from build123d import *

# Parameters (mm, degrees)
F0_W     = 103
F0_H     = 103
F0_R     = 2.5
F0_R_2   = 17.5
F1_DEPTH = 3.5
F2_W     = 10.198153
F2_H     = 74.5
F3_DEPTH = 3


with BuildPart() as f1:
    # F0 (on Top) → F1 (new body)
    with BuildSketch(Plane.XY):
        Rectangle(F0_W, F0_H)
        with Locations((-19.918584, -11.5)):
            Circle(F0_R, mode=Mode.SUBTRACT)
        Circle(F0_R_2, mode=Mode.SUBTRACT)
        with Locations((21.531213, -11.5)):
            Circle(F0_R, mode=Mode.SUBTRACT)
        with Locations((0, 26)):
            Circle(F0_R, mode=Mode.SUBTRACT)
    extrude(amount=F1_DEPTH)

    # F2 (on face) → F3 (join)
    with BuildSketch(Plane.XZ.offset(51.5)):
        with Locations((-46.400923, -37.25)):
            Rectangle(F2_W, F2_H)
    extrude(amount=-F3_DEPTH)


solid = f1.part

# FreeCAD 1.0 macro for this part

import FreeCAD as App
import Part
import Sketcher

V = App.Vector


def add_polygon(sketch, points):
    """Adds a closed chain of lines whose ends are joined by coincident constraints."""
    first, n = sketch.GeometryCount, len(points)
    for a, b in zip(points, points[1:] + points[:1]):
        sketch.addGeometry(Part.LineSegment(App.Vector(*a, 0), App.Vector(*b, 0)), False)
    for i in range(n):
        sketch.addConstraint(Sketcher.Constraint("Coincident", first + i, 2, first + (i + 1) % n, 1))

doc = App.newDocument("Part")
body = doc.addObject("PartDesign::Body", "Body")

sketch1 = doc.addObject("Sketcher::SketchObject", "Sketch")
body.addObject(sketch1)
sketch1.AttachmentSupport = (doc.XY_Plane, [""])
sketch1.MapMode = "FlatFace"
add_polygon(sketch1, [(-51.5, 51.5), (-51.5, -51.5), (51.5, -51.5), (51.5, 51.5)])
sketch1.addGeometry(Part.Circle(V(-19.918584, -11.5, 0), V(0, 0, 1), 2.5), False)
sketch1.addGeometry(Part.Circle(V(0, 0, 0), V(0, 0, 1), 17.5), False)
sketch1.addGeometry(Part.Circle(V(21.531213, -11.5, 0), V(0, 0, 1), 2.5), False)
sketch1.addGeometry(Part.Circle(V(0, 26, 0), V(0, 0, 1), 2.5), False)
sketch1.addConstraint([
    Sketcher.Constraint("Vertical", 0),
    Sketcher.Constraint("Horizontal", 1),
    Sketcher.Constraint("Vertical", 2),
    Sketcher.Constraint("Horizontal", 3),
    Sketcher.Constraint("Coincident", 5, 3, -1, 1),
    Sketcher.Constraint("Equal", 4, 6),
    Sketcher.Constraint("Equal", 6, 7),
    Sketcher.Constraint("Symmetric", 0, 2, 2, 2, -1, 1),
    Sketcher.Constraint("PointOnObject", 7, 3, -2),
    Sketcher.Constraint("Horizontal", 4, 3, 6, 3),
    Sketcher.Constraint("Equal", 3, 0),
    Sketcher.Constraint("Diameter", 4, 5.0),
    Sketcher.Constraint("Diameter", 5, 35.0),
    Sketcher.Constraint("DistanceX", 1, 1, 1, 2, 103.0),
    Sketcher.Constraint("DistanceY", -1, 1, 7, 3, 26.0),
    Sketcher.Constraint("DistanceY", 0, 2, 4, 3, 40.0),
    Sketcher.Constraint("DistanceX", 4, 3, -1, 1, 19.918584),
    Sketcher.Constraint("DistanceX", -1, 1, 6, 3, 21.531213),
])
pad1 = doc.addObject("PartDesign::Pad", "Pad")
body.addObject(pad1)
pad1.Profile = sketch1
pad1.Length = 3.5

sketch2 = doc.addObject("Sketcher::SketchObject", "Sketch001")
body.addObject(sketch2)
sketch2.AttachmentSupport = (doc.XZ_Plane, [""])
sketch2.MapMode = "FlatFace"
sketch2.AttachmentOffset = App.Placement(V(0, 0, 51.5), App.Rotation())
add_polygon(sketch2, [(-51.5, 0), (-51.5, -74.5), (-41.301847, -74.5), (-41.301847, 0)])
sketch2.addConstraint([
    Sketcher.Constraint("Vertical", 0),
    Sketcher.Constraint("Horizontal", 1),
    Sketcher.Constraint("Vertical", 2),
    Sketcher.Constraint("Horizontal", 3),
    Sketcher.Constraint("PointOnObject", 2, 2, -1),
    Sketcher.Constraint("DistanceY", 0, 2, 0, 1, 74.5),
    Sketcher.Constraint("DistanceX", 0, 2, -1, 1, 51.5),
    Sketcher.Constraint("DistanceX", 1, 1, 1, 2, 10.198153),
])
pad2 = doc.addObject("PartDesign::Pad", "Pad001")
body.addObject(pad2)
pad2.Profile = sketch2
pad2.Length = 3
pad2.Reversed = True

doc.recompute()
